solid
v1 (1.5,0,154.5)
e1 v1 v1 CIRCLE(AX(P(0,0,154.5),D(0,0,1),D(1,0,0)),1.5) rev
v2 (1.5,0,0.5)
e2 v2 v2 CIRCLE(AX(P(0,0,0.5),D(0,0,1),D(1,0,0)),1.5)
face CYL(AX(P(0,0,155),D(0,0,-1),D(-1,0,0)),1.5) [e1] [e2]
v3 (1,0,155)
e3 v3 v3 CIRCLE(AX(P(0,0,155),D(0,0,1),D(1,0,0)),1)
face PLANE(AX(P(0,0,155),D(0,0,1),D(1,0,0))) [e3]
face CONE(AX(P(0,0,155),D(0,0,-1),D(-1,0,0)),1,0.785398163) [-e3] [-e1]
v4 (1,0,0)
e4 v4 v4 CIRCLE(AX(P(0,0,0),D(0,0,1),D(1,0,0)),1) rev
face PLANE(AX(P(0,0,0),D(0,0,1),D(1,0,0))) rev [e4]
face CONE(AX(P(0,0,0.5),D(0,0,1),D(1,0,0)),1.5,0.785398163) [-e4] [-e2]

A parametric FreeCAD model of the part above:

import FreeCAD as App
import Part
import Sketcher
Q = App.Units.Quantity


def edges_at(feature, points):
    """Names of the edges that pass closest to the given points."""
    edges = feature.Shape.Edges
    near = lambda p: min(range(len(edges)), key=lambda i: edges[i].distToShape(Part.Vertex(*p))[0])
    return sorted({f"Edge{near(p) + 1}" for p in points})

doc = App.newDocument("Part")
body = doc.addObject("PartDesign::Body", "Body")

sketch1 = doc.addObject("Sketcher::SketchObject", "Sketch")
body.addObject(sketch1)
sketch1.AttachmentSupport = (doc.XY_Plane, [""])
sketch1.MapMode = "FlatFace"
sketch1.addGeometry(Part.Circle(App.Vector(0, 0, 0), App.Vector(0, 0, 1), 1.5), False)
sketch1.addConstraint([
    Sketcher.Constraint("Coincident", 0, 3, -1, 1),
    Sketcher.Constraint("Diameter", 0, Q("3 mm")),
])
pad1 = doc.addObject("PartDesign::Pad", "Pad")
body.addObject(pad1)
pad1.Profile = sketch1
pad1.Length = 155
doc.recompute()

chamfer = doc.addObject("PartDesign::Chamfer", "Chamfer")
body.addObject(chamfer)
chamfer.Base = (pad1, edges_at(pad1, [(-1.5, 0, 0), (-1.5, 0, 155)]))
chamfer.Size = 0.5

doc.recompute()
